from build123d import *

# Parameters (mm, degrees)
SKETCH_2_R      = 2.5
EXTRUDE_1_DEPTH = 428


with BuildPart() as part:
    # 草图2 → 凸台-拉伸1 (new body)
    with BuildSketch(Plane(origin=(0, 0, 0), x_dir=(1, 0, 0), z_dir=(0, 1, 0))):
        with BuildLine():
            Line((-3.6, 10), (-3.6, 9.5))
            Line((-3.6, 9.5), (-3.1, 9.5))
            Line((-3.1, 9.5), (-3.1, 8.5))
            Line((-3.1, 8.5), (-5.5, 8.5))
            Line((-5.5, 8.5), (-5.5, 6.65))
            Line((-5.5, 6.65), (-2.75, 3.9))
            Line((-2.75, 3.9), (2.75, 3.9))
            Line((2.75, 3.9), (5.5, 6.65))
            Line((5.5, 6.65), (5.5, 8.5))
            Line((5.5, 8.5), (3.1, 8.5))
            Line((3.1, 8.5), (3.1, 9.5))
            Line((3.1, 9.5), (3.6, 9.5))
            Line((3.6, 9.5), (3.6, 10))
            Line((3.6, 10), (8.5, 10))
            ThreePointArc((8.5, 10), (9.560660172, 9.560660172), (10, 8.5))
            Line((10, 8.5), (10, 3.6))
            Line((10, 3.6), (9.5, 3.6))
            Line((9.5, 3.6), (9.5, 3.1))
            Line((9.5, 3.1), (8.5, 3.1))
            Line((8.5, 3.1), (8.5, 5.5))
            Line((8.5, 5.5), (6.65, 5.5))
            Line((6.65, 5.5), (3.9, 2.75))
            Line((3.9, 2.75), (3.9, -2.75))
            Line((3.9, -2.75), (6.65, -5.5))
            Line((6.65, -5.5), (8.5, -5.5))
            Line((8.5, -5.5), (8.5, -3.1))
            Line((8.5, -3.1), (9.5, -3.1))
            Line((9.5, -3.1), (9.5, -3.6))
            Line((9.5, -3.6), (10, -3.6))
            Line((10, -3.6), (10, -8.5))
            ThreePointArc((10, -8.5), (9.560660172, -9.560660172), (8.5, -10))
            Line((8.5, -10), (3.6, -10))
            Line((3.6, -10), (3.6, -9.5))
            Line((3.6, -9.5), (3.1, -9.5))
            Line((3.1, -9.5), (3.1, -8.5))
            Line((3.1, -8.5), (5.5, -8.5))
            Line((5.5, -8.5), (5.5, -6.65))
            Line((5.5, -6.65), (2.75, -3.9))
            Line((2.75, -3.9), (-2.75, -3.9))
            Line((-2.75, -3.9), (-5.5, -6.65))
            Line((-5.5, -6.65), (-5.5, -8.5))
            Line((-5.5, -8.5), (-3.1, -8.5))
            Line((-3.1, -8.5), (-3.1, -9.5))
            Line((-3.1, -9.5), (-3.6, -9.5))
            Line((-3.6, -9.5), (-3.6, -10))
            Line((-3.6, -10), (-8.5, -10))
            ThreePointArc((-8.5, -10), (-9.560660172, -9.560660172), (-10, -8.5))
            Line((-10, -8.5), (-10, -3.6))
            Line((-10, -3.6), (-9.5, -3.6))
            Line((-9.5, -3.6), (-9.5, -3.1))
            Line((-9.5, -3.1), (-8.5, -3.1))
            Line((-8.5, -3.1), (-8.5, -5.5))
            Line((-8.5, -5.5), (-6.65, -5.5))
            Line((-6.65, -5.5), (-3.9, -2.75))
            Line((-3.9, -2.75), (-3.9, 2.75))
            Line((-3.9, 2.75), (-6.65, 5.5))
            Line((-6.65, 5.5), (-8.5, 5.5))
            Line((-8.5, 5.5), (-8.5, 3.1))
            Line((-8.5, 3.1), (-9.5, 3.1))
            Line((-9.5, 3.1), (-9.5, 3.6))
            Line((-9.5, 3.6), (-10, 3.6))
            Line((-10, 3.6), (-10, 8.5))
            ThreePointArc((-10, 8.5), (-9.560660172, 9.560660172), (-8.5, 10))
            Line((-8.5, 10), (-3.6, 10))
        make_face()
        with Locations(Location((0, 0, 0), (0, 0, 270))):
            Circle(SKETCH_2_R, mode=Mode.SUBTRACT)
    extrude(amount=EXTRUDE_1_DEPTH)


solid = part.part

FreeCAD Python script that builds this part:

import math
import FreeCAD as App
import Part
import Sketcher

V = App.Vector
Q = App.Units.Quantity

doc = App.newDocument("Part")
params = doc.addObject("Spreadsheet::Sheet", "Params")
for row, (alias, value) in enumerate([
    ("sketch1_diameter", "5 mm"),
    ("sketch1_radius", "1.5 mm"),
    ("sketch1_width", "1 mm"),
    ("sketch1_width2", "4.9 mm"),
    ("sketch1_width3", "2.4 mm"),
    ("pad1_length", "428 mm"),
], start=1):
    params.set(f"A{row}", alias)
    params.set(f"B{row}", "=" + value)
    params.setAlias(f"B{row}", alias)

body = doc.addObject("PartDesign::Body", "Body")

sketch1 = body.newObject("Sketcher::SketchObject", "Sketch")
sketch1.AttachmentSupport = (doc.getObject("XZ_Plane"), [""])
sketch1.MapMode = "FlatFace"
sketch1.addGeometry([
    Part.LineSegment(V(-3.6, -9.5, 0), V(-3.6, -10, 0)),
    Part.LineSegment(V(-3.6, -10, 0), V(-8.5, -10, 0)),
    Part.ArcOfCircle(Part.Circle(V(-8.5, -8.5, 0), V(0, 0, 1), 1.5), math.radians(180), math.radians(270)),
    Part.LineSegment(V(-10, -8.5, 0), V(-10, -3.6, 0)),
    Part.LineSegment(V(-10, -3.6, 0), V(-9.5, -3.6, 0)),
    Part.LineSegment(V(-9.5, -3.6, 0), V(-9.5, -3.1, 0)),
    Part.LineSegment(V(-9.5, -3.1, 0), V(-8.5, -3.1, 0)),
    Part.LineSegment(V(-8.5, -3.1, 0), V(-8.5, -5.5, 0)),
    Part.LineSegment(V(-8.5, -5.5, 0), V(-6.65, -5.5, 0)),
    Part.LineSegment(V(-6.65, -5.5, 0), V(-3.9, -2.75, 0)),
    Part.LineSegment(V(-3.9, -2.75, 0), V(-3.9, 2.75, 0)),
    Part.LineSegment(V(-3.9, 2.75, 0), V(-6.65, 5.5, 0)),
    Part.LineSegment(V(-6.65, 5.5, 0), V(-8.5, 5.5, 0)),
    Part.LineSegment(V(-8.5, 5.5, 0), V(-8.5, 3.1, 0)),
    Part.LineSegment(V(-8.5, 3.1, 0), V(-9.5, 3.1, 0)),
    Part.LineSegment(V(-9.5, 3.1, 0), V(-9.5, 3.6, 0)),
    Part.LineSegment(V(-9.5, 3.6, 0), V(-10, 3.6, 0)),
    Part.LineSegment(V(-10, 3.6, 0), V(-10, 8.5, 0)),
    Part.ArcOfCircle(Part.Circle(V(-8.5, 8.5, 0), V(0, 0, 1), 1.5), math.radians(90), math.radians(180)),
    Part.LineSegment(V(-8.5, 10, 0), V(-3.6, 10, 0)),
    Part.LineSegment(V(-3.6, 10, 0), V(-3.6, 9.5, 0)),
    Part.LineSegment(V(-3.6, 9.5, 0), V(-3.1, 9.5, 0)),
    Part.LineSegment(V(-3.1, 9.5, 0), V(-3.1, 8.5, 0)),
    Part.LineSegment(V(-3.1, 8.5, 0), V(-5.5, 8.5, 0)),
    Part.LineSegment(V(-5.5, 8.5, 0), V(-5.5, 6.65, 0)),
    Part.LineSegment(V(-5.5, 6.65, 0), V(-2.75, 3.9, 0)),
    Part.LineSegment(V(-2.75, 3.9, 0), V(2.75, 3.9, 0)),
    Part.LineSegment(V(2.75, 3.9, 0), V(5.5, 6.65, 0)),
    Part.LineSegment(V(5.5, 6.65, 0), V(5.5, 8.5, 0)),
    Part.LineSegment(V(5.5, 8.5, 0), V(3.1, 8.5, 0)),
    Part.LineSegment(V(3.1, 8.5, 0), V(3.1, 9.5, 0)),
    Part.LineSegment(V(3.1, 9.5, 0), V(3.6, 9.5, 0)),
    Part.LineSegment(V(3.6, 9.5, 0), V(3.6, 10, 0)),
    Part.LineSegment(V(3.6, 10, 0), V(8.5, 10, 0)),
    Part.ArcOfCircle(Part.Circle(V(8.5, 8.5, 0), V(0, 0, 1), 1.5), math.radians(0), math.radians(90)),
    Part.LineSegment(V(10, 8.5, 0), V(10, 3.6, 0)),
    Part.LineSegment(V(10, 3.6, 0), V(9.5, 3.6, 0)),
    Part.LineSegment(V(9.5, 3.6, 0), V(9.5, 3.1, 0)),
    Part.LineSegment(V(9.5, 3.1, 0), V(8.5, 3.1, 0)),
    Part.LineSegment(V(8.5, 3.1, 0), V(8.5, 5.5, 0)),
    Part.LineSegment(V(8.5, 5.5, 0), V(6.65, 5.5, 0)),
    Part.LineSegment(V(6.65, 5.5, 0), V(3.9, 2.75, 0)),
    Part.LineSegment(V(3.9, 2.75, 0), V(3.9, -2.75, 0)),
    Part.LineSegment(V(3.9, -2.75, 0), V(6.65, -5.5, 0)),
    Part.LineSegment(V(6.65, -5.5, 0), V(8.5, -5.5, 0)),
    Part.LineSegment(V(8.5, -5.5, 0), V(8.5, -3.1, 0)),
    Part.LineSegment(V(8.5, -3.1, 0), V(9.5, -3.1, 0)),
    Part.LineSegment(V(9.5, -3.1, 0), V(9.5, -3.6, 0)),
    Part.LineSegment(V(9.5, -3.6, 0), V(10, -3.6, 0)),
    Part.LineSegment(V(10, -3.6, 0), V(10, -8.5, 0)),
    Part.ArcOfCircle(Part.Circle(V(8.5, -8.5, 0), V(0, 0, 1), 1.5), math.radians(-90), math.radians(0)),
    Part.LineSegment(V(8.5, -10, 0), V(3.6, -10, 0)),
    Part.LineSegment(V(3.6, -10, 0), V(3.6, -9.5, 0)),
    Part.LineSegment(V(3.6, -9.5, 0), V(3.1, -9.5, 0)),
    Part.LineSegment(V(3.1, -9.5, 0), V(3.1, -8.5, 0)),
    Part.LineSegment(V(3.1, -8.5, 0), V(5.5, -8.5, 0)),
    Part.LineSegment(V(5.5, -8.5, 0), V(5.5, -6.65, 0)),
    Part.LineSegment(V(5.5, -6.65, 0), V(2.75, -3.9, 0)),
    Part.LineSegment(V(2.75, -3.9, 0), V(-2.75, -3.9, 0)),
    Part.LineSegment(V(-2.75, -3.9, 0), V(-5.5, -6.65, 0)),
    Part.LineSegment(V(-5.5, -6.65, 0), V(-5.5, -8.5, 0)),
    Part.LineSegment(V(-5.5, -8.5, 0), V(-3.1, -8.5, 0)),
    Part.LineSegment(V(-3.1, -8.5, 0), V(-3.1, -9.5, 0)),
    Part.LineSegment(V(-3.1, -9.5, 0), V(-3.6, -9.5, 0)),
    Part.Circle(V(0, 0, 0), V(0, 0, 1), 2.5),
], False)
sketch1.addConstraint([
    Sketcher.Constraint("Coincident", 0, 2, 1, 1),
    Sketcher.Constraint("Tangent", 1, 2, 2, 2),
    Sketcher.Constraint("Tangent", 2, 1, 3, 1),
    Sketcher.Constraint("Coincident", 3, 2, 4, 1),
    Sketcher.Constraint("Coincident", 4, 2, 5, 1),
    Sketcher.Constraint("Coincident", 5, 2, 6, 1),
    Sketcher.Constraint("Coincident", 6, 2, 7, 1),
    Sketcher.Constraint("Coincident", 7, 2, 8, 1),
    Sketcher.Constraint("Coincident", 8, 2, 9, 1),
    Sketcher.Constraint("Coincident", 9, 2, 10, 1),
    Sketcher.Constraint("Coincident", 10, 2, 11, 1),
    Sketcher.Constraint("Coincident", 11, 2, 12, 1),
    Sketcher.Constraint("Coincident", 12, 2, 13, 1),
    Sketcher.Constraint("Coincident", 13, 2, 14, 1),
    Sketcher.Constraint("Coincident", 14, 2, 15, 1),
    Sketcher.Constraint("Coincident", 15, 2, 16, 1),
    Sketcher.Constraint("Coincident", 16, 2, 17, 1),
    Sketcher.Constraint("Tangent", 17, 2, 18, 2),
    Sketcher.Constraint("Tangent", 18, 1, 19, 1),
    Sketcher.Constraint("Coincident", 19, 2, 20, 1),
    Sketcher.Constraint("Coincident", 20, 2, 21, 1),
    Sketcher.Constraint("Coincident", 21, 2, 22, 1),
    Sketcher.Constraint("Coincident", 22, 2, 23, 1),
    Sketcher.Constraint("Coincident", 23, 2, 24, 1),
    Sketcher.Constraint("Coincident", 24, 2, 25, 1),
    Sketcher.Constraint("Coincident", 25, 2, 26, 1),
    Sketcher.Constraint("Coincident", 26, 2, 27, 1),
    Sketcher.Constraint("Coincident", 27, 2, 28, 1),
    Sketcher.Constraint("Coincident", 28, 2, 29, 1),
    Sketcher.Constraint("Coincident", 29, 2, 30, 1),
    Sketcher.Constraint("Coincident", 30, 2, 31, 1),
    Sketcher.Constraint("Coincident", 31, 2, 32, 1),
    Sketcher.Constraint("Coincident", 32, 2, 33, 1),
    Sketcher.Constraint("Tangent", 33, 2, 34, 2),
    Sketcher.Constraint("Tangent", 34, 1, 35, 1),
    Sketcher.Constraint("Coincident", 35, 2, 36, 1),
    Sketcher.Constraint("Coincident", 36, 2, 37, 1),
    Sketcher.Constraint("Coincident", 37, 2, 38, 1),
    Sketcher.Constraint("Coincident", 38, 2, 39, 1),
    Sketcher.Constraint("Coincident", 39, 2, 40, 1),
    Sketcher.Constraint("Coincident", 40, 2, 41, 1),
    Sketcher.Constraint("Coincident", 41, 2, 42, 1),
    Sketcher.Constraint("Coincident", 42, 2, 43, 1),
    Sketcher.Constraint("Coincident", 43, 2, 44, 1),
    Sketcher.Constraint("Coincident", 44, 2, 45, 1),
    Sketcher.Constraint("Coincident", 45, 2, 46, 1),
    Sketcher.Constraint("Coincident", 46, 2, 47, 1),
    Sketcher.Constraint("Coincident", 47, 2, 48, 1),
    Sketcher.Constraint("Coincident", 48, 2, 49, 1),
    Sketcher.Constraint("Tangent", 49, 2, 50, 2),
    Sketcher.Constraint("Tangent", 50, 1, 51, 1),
    Sketcher.Constraint("Coincident", 51, 2, 52, 1),
    Sketcher.Constraint("Coincident", 52, 2, 53, 1),
    Sketcher.Constraint("Coincident", 53, 2, 54, 1),
    Sketcher.Constraint("Coincident", 54, 2, 55, 1),
    Sketcher.Constraint("Coincident", 55, 2, 56, 1),
    Sketcher.Constraint("Coincident", 56, 2, 57, 1),
    Sketcher.Constraint("Coincident", 57, 2, 58, 1),
    Sketcher.Constraint("Coincident", 58, 2, 59, 1),
    Sketcher.Constraint("Coincident", 59, 2, 60, 1),
    Sketcher.Constraint("Coincident", 60, 2, 61, 1),
    Sketcher.Constraint("Coincident", 61, 2, 62, 1),
    Sketcher.Constraint("Coincident", 62, 2, 63, 1),
    Sketcher.Constraint("Coincident", 63, 2, 0, 1),
    Sketcher.Constraint("Vertical", 0),
    Sketcher.Constraint("Horizontal", 1),
    Sketcher.Constraint("Vertical", 3),
    Sketcher.Constraint("Horizontal", 4),
    Sketcher.Constraint("Vertical", 5),
    Sketcher.Constraint("Horizontal", 6),
    Sketcher.Constraint("Vertical", 7),
    Sketcher.Constraint("Horizontal", 8),
    Sketcher.Constraint("Vertical", 10),
    Sketcher.Constraint("Horizontal", 12),
    Sketcher.Constraint("Vertical", 13),
    Sketcher.Constraint("Horizontal", 14),
    Sketcher.Constraint("Vertical", 15),
    Sketcher.Constraint("Horizontal", 16),
    Sketcher.Constraint("Vertical", 17),
    Sketcher.Constraint("Horizontal", 19),
    Sketcher.Constraint("Vertical", 20),
    Sketcher.Constraint("Horizontal", 21),
    Sketcher.Constraint("Vertical", 22),
    Sketcher.Constraint("Horizontal", 23),
    Sketcher.Constraint("Vertical", 24),
    Sketcher.Constraint("Horizontal", 26),
    Sketcher.Constraint("Vertical", 28),
    Sketcher.Constraint("Horizontal", 29),
    Sketcher.Constraint("Vertical", 30),
    Sketcher.Constraint("Horizontal", 31),
    Sketcher.Constraint("Vertical", 32),
    Sketcher.Constraint("Horizontal", 33),
    Sketcher.Constraint("Vertical", 35),
    Sketcher.Constraint("Horizontal", 36),
    Sketcher.Constraint("Vertical", 37),
    Sketcher.Constraint("Horizontal", 38),
    Sketcher.Constraint("Vertical", 39),
    Sketcher.Constraint("Horizontal", 40),
    Sketcher.Constraint("Vertical", 42),
    Sketcher.Constraint("Horizontal", 44),
    Sketcher.Constraint("Vertical", 45),
    Sketcher.Constraint("Horizontal", 46),
    Sketcher.Constraint("Vertical", 47),
    Sketcher.Constraint("Horizontal", 48),
    Sketcher.Constraint("Vertical", 49),
    Sketcher.Constraint("Horizontal", 51),
    Sketcher.Constraint("Vertical", 52),
    Sketcher.Constraint("Horizontal", 53),
    Sketcher.Constraint("Vertical", 54),
    Sketcher.Constraint("Horizontal", 55),
    Sketcher.Constraint("Vertical", 56),
    Sketcher.Constraint("Horizontal", 58),
    Sketcher.Constraint("Vertical", 60),
    Sketcher.Constraint("Horizontal", 61),
    Sketcher.Constraint("Vertical", 62),
    Sketcher.Constraint("Horizontal", 63),
    Sketcher.Constraint("Coincident", 64, 3, -1, 1),
    Sketcher.Constraint("Equal", 2, 18),
    Sketcher.Constraint("Equal", 18, 34),
    Sketcher.Constraint("Equal", 34, 50),
    Sketcher.Constraint("Symmetric", 2, 3, 34, 3, -1, 1),
    Sketcher.Constraint("Symmetric", 18, 3, 50, 3, -1, 1),
    Sketcher.Constraint("Symmetric", 4, 2, 36, 2, -1, 1),
    Sketcher.Constraint("Symmetric", 6, 2, 38, 2, -1, 1),
    Sketcher.Constraint("Symmetric", 8, 2, 40, 2, -1, 1),
    Sketcher.Constraint("Symmetric", 9, 2, 41, 2, -1, 1),
    Sketcher.Constraint("Symmetric", 11, 2, 43, 2, -1, 1),
    Sketcher.Constraint("Symmetric", 13, 2, 45, 2, -1, 1),
    Sketcher.Constraint("Symmetric", 15, 2, 47, 2, -1, 1),
    Sketcher.Constraint("Symmetric", 20, 2, 52, 2, -1, 1),
    Sketcher.Constraint("Symmetric", 22, 2, 54, 2, -1, 1),
    Sketcher.Constraint("Symmetric", 24, 2, 56, 2, -1, 1),
    Sketcher.Constraint("Symmetric", 25, 2, 57, 2, -1, 1),
    Sketcher.Constraint("Symmetric", 27, 2, 59, 2, -1, 1),
    Sketcher.Constraint("Symmetric", 29, 2, 61, 2, -1, 1),
    Sketcher.Constraint("Symmetric", 31, 2, 63, 2, -1, 1),
    Sketcher.Constraint("Symmetric", 18, 3, 34, 3, -2),
    Sketcher.Constraint("Symmetric", 24, 2, 27, 2, -2),
    Sketcher.Constraint("Symmetric", 22, 2, 29, 2, -2),
    Sketcher.Constraint("Symmetric", 20, 2, 31, 2, -2),
    Sketcher.Constraint("Symmetric", 15, 2, 36, 2, -2),
    Sketcher.Constraint("Symmetric", 13, 2, 38, 2, -2),
    Sketcher.Constraint("Symmetric", 11, 2, 40, 2, -2),
    Sketcher.Constraint("Perpendicular", 9, 11),
    Sketcher.Constraint("Parallel", 11, 25),
    Sketcher.Constraint("Perpendicular", 25, 27),
    Sketcher.Constraint("Perpendicular", 41, 43),
    Sketcher.Constraint("Perpendicular", 57, 59),
    Sketcher.Constraint("Horizontal", 17, 2, 22, 2),
    Sketcher.Constraint("Horizontal", 10, 2, 41, 2),
    Sketcher.Constraint("Vertical", 1, 2, 6, 2),
    Sketcher.Constraint("Equal", 16, 21),
    Sketcher.Constraint("Equal", 63, 0),
    Sketcher.Constraint("Equal", 51, 3),
    Sketcher.Constraint("Equal", 0, 5),
    Sketcher.Constraint("Equal", 61, 7),
    Sketcher.Constraint("Equal", 58, 10),
    Sketcher.Constraint("Equal", 44, 24),
    Sketcher.Constraint("Equal", 11, 25),
    Sketcher.Constraint("Diameter", 64, Q("5 mm")),
    Sketcher.Constraint("Radius", 2, Q("1.5 mm")),
    Sketcher.Constraint("DistanceX", 6, 1, 6, 2, Q("1 mm")),
    Sketcher.Constraint("DistanceX", 1, 2, 1, 1, Q("4.9 mm")),
    Sketcher.Constraint("DistanceX", 23, 2, 23, 1, Q("2.4 mm")),
    Sketcher.Constraint("DistanceX", 26, 1, 26, 2, Q("5.5 mm")),
    Sketcher.Constraint("DistanceY", 0, 2, -1, 1, Q("10 mm")),
    Sketcher.Constraint("DistanceX", 8, 1, 8, 2, Q("1.85 mm")),
])
sketch1.setExpression("Constraints[159]", "Params.sketch1_diameter")
sketch1.setExpression("Constraints[160]", "Params.sketch1_radius")
sketch1.setExpression("Constraints[161]", "Params.sketch1_width")
sketch1.setExpression("Constraints[162]", "Params.sketch1_width2")
sketch1.setExpression("Constraints[163]", "Params.sketch1_width3")
pad1 = body.newObject("PartDesign::Pad", "Pad")
pad1.Profile = sketch1
pad1.setExpression("Length", "Params.pad1_length")
pad1.Reversed = True

doc.recompute()
